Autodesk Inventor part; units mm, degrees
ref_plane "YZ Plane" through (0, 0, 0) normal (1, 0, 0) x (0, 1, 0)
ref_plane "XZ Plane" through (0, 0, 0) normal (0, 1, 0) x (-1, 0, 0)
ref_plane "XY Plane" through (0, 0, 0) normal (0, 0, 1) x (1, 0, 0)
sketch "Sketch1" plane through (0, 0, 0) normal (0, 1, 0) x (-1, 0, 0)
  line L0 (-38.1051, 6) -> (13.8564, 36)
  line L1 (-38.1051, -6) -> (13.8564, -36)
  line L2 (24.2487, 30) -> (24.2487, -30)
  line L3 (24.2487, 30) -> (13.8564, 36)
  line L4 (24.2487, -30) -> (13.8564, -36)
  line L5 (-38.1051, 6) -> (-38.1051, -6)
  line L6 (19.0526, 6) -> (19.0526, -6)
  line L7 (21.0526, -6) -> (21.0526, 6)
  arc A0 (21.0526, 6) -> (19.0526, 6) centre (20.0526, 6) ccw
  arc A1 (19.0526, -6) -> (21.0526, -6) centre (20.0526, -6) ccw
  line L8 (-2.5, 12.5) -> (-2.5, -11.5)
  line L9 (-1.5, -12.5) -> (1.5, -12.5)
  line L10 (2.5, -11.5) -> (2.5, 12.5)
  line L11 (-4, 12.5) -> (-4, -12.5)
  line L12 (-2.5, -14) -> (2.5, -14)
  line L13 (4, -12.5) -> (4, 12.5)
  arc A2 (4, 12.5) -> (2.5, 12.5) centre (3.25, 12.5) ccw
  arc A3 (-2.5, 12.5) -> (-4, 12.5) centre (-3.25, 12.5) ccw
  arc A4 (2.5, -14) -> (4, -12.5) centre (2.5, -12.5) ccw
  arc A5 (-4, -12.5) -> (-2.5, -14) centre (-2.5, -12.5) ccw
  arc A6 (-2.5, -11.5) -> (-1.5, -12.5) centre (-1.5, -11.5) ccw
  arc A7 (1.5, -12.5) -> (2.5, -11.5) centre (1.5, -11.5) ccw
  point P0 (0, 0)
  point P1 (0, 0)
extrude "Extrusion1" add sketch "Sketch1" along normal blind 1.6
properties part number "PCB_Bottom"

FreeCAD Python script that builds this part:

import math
import FreeCAD as App
import Part
import Sketcher
from FreeCAD import Vector
Q = App.Units.Quantity

doc = App.newDocument("Part")
params = doc.addObject("Spreadsheet::Sheet", "Params")
for row, (alias, value) in enumerate([
    ("sketch1_radius", "1 mm"),
    ("sketch1_radius2", "1.5 mm"),
    ("sketch1_width", "3 mm"),
    ("sketch1_height", "12 mm"),
    ("sketch1_height2", "60 mm"),
    ("pad1_length", "1.6 mm"),
], start=1):
    params.set(f"A{row}", alias)
    params.set(f"B{row}", "=" + value)
    params.setAlias(f"B{row}", alias)

body = doc.addObject("PartDesign::Body", "Body")

# Sketch on XZ plane
sketch1 = doc.addObject("Sketcher::SketchObject", "Sketch")
body.addObject(sketch1)
sketch1.AttachmentSupport = (doc.XZ_Plane, [""])
sketch1.MapMode = "FlatFace"
sketch1.addGeometry(Part.LineSegment(Vector(-13.9, 36, 0), Vector(38.1, 6, 0)), False)
sketch1.addGeometry(Part.LineSegment(Vector(38.1, 6, 0), Vector(38.1, -6, 0)), False)
sketch1.addGeometry(Part.LineSegment(Vector(38.1, -6, 0), Vector(-13.9, -36, 0)), False)
sketch1.addGeometry(Part.LineSegment(Vector(-13.9, -36, 0), Vector(-24.2, -30, 0)), False)
sketch1.addGeometry(Part.LineSegment(Vector(-24.2, -30, 0), Vector(-24.2, 30, 0)), False)
sketch1.addGeometry(Part.LineSegment(Vector(-24.2, 30, 0), Vector(-13.9, 36, 0)), False)
sketch1.addGeometry(Part.ArcOfCircle(Part.Circle(Vector(3.2, 12.5, 0), Vector(0, 0, 1), 0.8), math.radians(0), math.radians(180)), False)
sketch1.addGeometry(Part.LineSegment(Vector(2.5, 12.5, 0), Vector(2.5, -11.5, 0)), False)
sketch1.addGeometry(Part.ArcOfCircle(Part.Circle(Vector(1.5, -11.5, 0), Vector(0, 0, 1), 1), math.radians(-90), math.radians(0)), False)
sketch1.addGeometry(Part.LineSegment(Vector(1.5, -12.5, 0), Vector(-1.5, -12.5, 0)), False)
sketch1.addGeometry(Part.ArcOfCircle(Part.Circle(Vector(-1.5, -11.5, 0), Vector(0, 0, 1), 1), math.radians(180), math.radians(270)), False)
sketch1.addGeometry(Part.LineSegment(Vector(-2.5, -11.5, 0), Vector(-2.5, 12.5, 0)), False)
sketch1.addGeometry(Part.ArcOfCircle(Part.Circle(Vector(-3.2, 12.5, 0), Vector(0, 0, 1), 0.8), math.radians(0), math.radians(180)), False)
sketch1.addGeometry(Part.LineSegment(Vector(-4, 12.5, 0), Vector(-4, -12.5, 0)), False)
sketch1.addGeometry(Part.ArcOfCircle(Part.Circle(Vector(-2.5, -12.5, 0), Vector(0, 0, 1), 1.5), math.radians(180), math.radians(270)), False)
sketch1.addGeometry(Part.LineSegment(Vector(-2.5, -14, 0), Vector(2.5, -14, 0)), False)
sketch1.addGeometry(Part.ArcOfCircle(Part.Circle(Vector(2.5, -12.5, 0), Vector(0, 0, 1), 1.5), math.radians(-90), math.radians(0)), False)
sketch1.addGeometry(Part.LineSegment(Vector(4, -12.5, 0), Vector(4, 12.5, 0)), False)
sketch1.addGeometry(Part.LineSegment(Vector(-19.1, -6, 0), Vector(-19.1, 6, 0)), False)
sketch1.addGeometry(Part.ArcOfCircle(Part.Circle(Vector(-20.1, 6, 0), Vector(0, 0, 1), 1), math.radians(0), math.radians(180)), False)
sketch1.addGeometry(Part.LineSegment(Vector(-21.1, 6, 0), Vector(-21.1, -6, 0)), False)
sketch1.addGeometry(Part.ArcOfCircle(Part.Circle(Vector(-20.1, -6, 0), Vector(0, 0, 1), 1), math.radians(180), math.radians(360)), False)
sketch1.addConstraint(Sketcher.Constraint("Coincident", 0, 2, 1, 1))
sketch1.addConstraint(Sketcher.Constraint("Coincident", 1, 2, 2, 1))
sketch1.addConstraint(Sketcher.Constraint("Coincident", 2, 2, 3, 1))
sketch1.addConstraint(Sketcher.Constraint("Coincident", 3, 2, 4, 1))
sketch1.addConstraint(Sketcher.Constraint("Coincident", 4, 2, 5, 1))
sketch1.addConstraint(Sketcher.Constraint("Coincident", 5, 2, 0, 1))
sketch1.addConstraint(Sketcher.Constraint("Tangent", 6, 2, 7, 1))
sketch1.addConstraint(Sketcher.Constraint("Tangent", 7, 2, 8, 2))
sketch1.addConstraint(Sketcher.Constraint("Tangent", 8, 1, 9, 1))
sketch1.addConstraint(Sketcher.Constraint("Tangent", 9, 2, 10, 2))
sketch1.addConstraint(Sketcher.Constraint("Tangent", 10, 1, 11, 1))
sketch1.addConstraint(Sketcher.Constraint("Tangent", 11, 2, 12, 1))
sketch1.addConstraint(Sketcher.Constraint("Tangent", 12, 2, 13, 1))
sketch1.addConstraint(Sketcher.Constraint("Tangent", 13, 2, 14, 1))
sketch1.addConstraint(Sketcher.Constraint("Tangent", 14, 2, 15, 1))
sketch1.addConstraint(Sketcher.Constraint("Tangent", 15, 2, 16, 1))
sketch1.addConstraint(Sketcher.Constraint("Tangent", 16, 2, 17, 1))
sketch1.addConstraint(Sketcher.Constraint("Tangent", 17, 2, 6, 1))
sketch1.addConstraint(Sketcher.Constraint("Tangent", 18, 2, 19, 1))
sketch1.addConstraint(Sketcher.Constraint("Tangent", 19, 2, 20, 1))
sketch1.addConstraint(Sketcher.Constraint("Tangent", 20, 2, 21, 1))
sketch1.addConstraint(Sketcher.Constraint("Tangent", 21, 2, 18, 1))
sketch1.addConstraint(Sketcher.Constraint("Vertical", 1))
sketch1.addConstraint(Sketcher.Constraint("Vertical", 4))
sketch1.addConstraint(Sketcher.Constraint("Vertical", 7))
sketch1.addConstraint(Sketcher.Constraint("Horizontal", 9))
sketch1.addConstraint(Sketcher.Constraint("Vertical", 11))
sketch1.addConstraint(Sketcher.Constraint("Vertical", 13))
sketch1.addConstraint(Sketcher.Constraint("Horizontal", 15))
sketch1.addConstraint(Sketcher.Constraint("Vertical", 17))
sketch1.addConstraint(Sketcher.Constraint("Vertical", 18))
sketch1.addConstraint(Sketcher.Constraint("Vertical", 20))
sketch1.addConstraint(Sketcher.Constraint("Equal", 8, 10))
sketch1.addConstraint(Sketcher.Constraint("Equal", 6, 12))
sketch1.addConstraint(Sketcher.Constraint("Equal", 14, 16))
sketch1.addConstraint(Sketcher.Constraint("Equal", 10, 19))
sketch1.addConstraint(Sketcher.Constraint("Symmetric", 12, 2, 16, 2, -1, 1))
sketch1.addConstraint(Sketcher.Constraint("Symmetric", 2, 2, 5, 2, -1))
sketch1.addConstraint(Sketcher.Constraint("Parallel", 0, 3))
sketch1.addConstraint(Sketcher.Constraint("Parallel", 2, 5))
sketch1.addConstraint(Sketcher.Constraint("Horizontal", 6, 3, 12, 3))
sketch1.addConstraint(Sketcher.Constraint("Horizontal", 19, 3, 0, 2))
sketch1.addConstraint(Sketcher.Constraint("Horizontal", 21, 3, 1, 2))
sketch1.addConstraint(Sketcher.Constraint("Horizontal", 16, 3, 8, 1))
sketch1.addConstraint(Sketcher.Constraint("Vertical", 16, 3, 6, 2))
sketch1.addConstraint(Sketcher.Constraint("Equal", 0, 2))
sketch1.addConstraint(Sketcher.Constraint("Radius", 8, Q("1 mm")))
sketch1.addConstraint(Sketcher.Constraint("Radius", 14, Q("1.5 mm")))
sketch1.addConstraint(Sketcher.Constraint("DistanceX", 9, 2, 9, 1, Q("3 mm")))
sketch1.addConstraint(Sketcher.Constraint("DistanceY", 1, 2, 1, 1, Q("12 mm")))
sketch1.addConstraint(Sketcher.Constraint("DistanceY", 4, 1, 4, 2, Q("60 mm")))
sketch1.addConstraint(Sketcher.Constraint("DistanceY", 7, 2, 7, 1, Q("24 mm")))
sketch1.addConstraint(Sketcher.Constraint("Angle", 0, Q("-30 deg")))
sketch1.addConstraint(Sketcher.Constraint("Distance", 0, Q("60 mm")))
sketch1.addConstraint(Sketcher.Constraint("DistanceX", -1, 1, 0, 2, Q("38.105 mm")))
sketch1.addConstraint(Sketcher.Constraint("DistanceX", 3, 2, 21, 3, Q("4.196 mm")))
sketch1.setExpression("Constraints[46]", "Params.sketch1_radius")
sketch1.setExpression("Constraints[47]", "Params.sketch1_radius2")
sketch1.setExpression("Constraints[48]", "Params.sketch1_width")
sketch1.setExpression("Constraints[49]", "Params.sketch1_height")
sketch1.setExpression("Constraints[50]", "Params.sketch1_height2")
pad1 = doc.addObject("PartDesign::Pad", "Pad")
body.addObject(pad1)
pad1.Profile = sketch1
pad1.setExpression("Length", "Params.pad1_length")
pad1.Reversed = True

doc.recompute()
